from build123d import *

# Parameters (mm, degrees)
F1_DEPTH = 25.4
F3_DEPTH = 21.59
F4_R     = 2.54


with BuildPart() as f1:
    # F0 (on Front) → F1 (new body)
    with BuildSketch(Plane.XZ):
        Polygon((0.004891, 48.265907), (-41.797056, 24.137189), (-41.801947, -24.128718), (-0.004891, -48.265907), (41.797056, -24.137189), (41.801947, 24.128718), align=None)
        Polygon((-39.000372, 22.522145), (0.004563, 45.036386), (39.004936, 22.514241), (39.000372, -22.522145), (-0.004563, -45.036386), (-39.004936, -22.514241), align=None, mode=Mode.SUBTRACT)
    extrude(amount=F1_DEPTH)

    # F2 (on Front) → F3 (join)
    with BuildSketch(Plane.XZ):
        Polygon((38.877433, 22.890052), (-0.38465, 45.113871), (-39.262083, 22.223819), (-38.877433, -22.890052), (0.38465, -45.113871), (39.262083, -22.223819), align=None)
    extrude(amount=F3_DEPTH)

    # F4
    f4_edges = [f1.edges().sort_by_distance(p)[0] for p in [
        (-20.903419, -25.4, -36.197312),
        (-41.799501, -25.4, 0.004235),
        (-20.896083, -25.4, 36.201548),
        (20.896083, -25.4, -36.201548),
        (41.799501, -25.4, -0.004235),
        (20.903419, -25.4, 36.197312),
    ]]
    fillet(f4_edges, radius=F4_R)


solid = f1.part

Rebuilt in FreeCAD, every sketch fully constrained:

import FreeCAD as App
import Part
import Sketcher
Q = App.Units.Quantity


def edges_at(feature, points):
    """Names of the edges that pass closest to the given points."""
    edges = feature.Shape.Edges
    near = lambda p: min(range(len(edges)), key=lambda i: edges[i].distToShape(Part.Vertex(*p))[0])
    return sorted({f"Edge{near(p) + 1}" for p in points})


def add_polygon(sketch, points):
    """Adds a closed chain of lines whose ends are joined by coincident constraints."""
    first, n = sketch.GeometryCount, len(points)
    for a, b in zip(points, points[1:] + points[:1]):
        sketch.addGeometry(Part.LineSegment(App.Vector(*a, 0), App.Vector(*b, 0)), False)
    for i in range(n):
        sketch.addConstraint(Sketcher.Constraint("Coincident", first + i, 2, first + (i + 1) % n, 1))

doc = App.newDocument("Part")
body = doc.addObject("PartDesign::Body", "Body")

sketch1 = body.newObject("Sketcher::SketchObject", "Sketch")
sketch1.AttachmentSupport = (doc.getObject("XZ_Plane"), [""])
sketch1.MapMode = "FlatFace"
add_polygon(sketch1, [(0, 48), (-42, 24), (-42, -24), (0, -48), (42, -24), (42, 24)])
add_polygon(sketch1, [(-39, -23), (-39, 23), (0, 45), (39, 23), (39, -23), (0, -45)])
sketch1.addConstraint([
    Sketcher.Constraint("Symmetric", 0, 2, 3, 2, -1, 1),
    Sketcher.Constraint("Symmetric", 1, 2, 4, 2, -1, 1),
    Sketcher.Constraint("Symmetric", 2, 2, 5, 2, -1, 1),
    Sketcher.Constraint("Symmetric", 6, 2, 9, 2, -1, 1),
    Sketcher.Constraint("Symmetric", 7, 2, 10, 2, -1, 1),
    Sketcher.Constraint("Symmetric", 8, 2, 11, 2, -1, 1),
    Sketcher.Constraint("Parallel", 4, 6),
    Sketcher.Constraint("Parallel", 3, 7),
    Sketcher.Constraint("Parallel", 5, 8),
    Sketcher.Constraint("Equal", 0, 1),
    Sketcher.Constraint("Equal", 1, 2),
    Sketcher.Constraint("Equal", 6, 7),
    Sketcher.Constraint("Equal", 7, 8),
    Sketcher.Constraint("DistanceX", 10, 2, 8, 2, Q("39.009499 mm")),
    Sketcher.Constraint("DistanceY", -1, 1, 0, 2, Q("24.137189 mm")),
    Sketcher.Constraint("DistanceX", 2, 2, -1, 1, Q("0.004891 mm")),
    Sketcher.Constraint("DistanceY", -1, 1, 8, 2, Q("22.514241 mm")),
    Sketcher.Constraint("DistanceX", 1, 2, 0, 2, Q("0.004891 mm")),
])
pad1 = body.newObject("PartDesign::Pad", "Pad")
pad1.Profile = sketch1
pad1.Length = Q("1 in")

sketch2 = body.newObject("Sketcher::SketchObject", "Sketch001")
sketch2.AttachmentSupport = (doc.getObject("XZ_Plane"), [""])
sketch2.MapMode = "FlatFace"
add_polygon(sketch2, [(39, 23), (0, 45), (-39, 22), (-39, -23), (0, -45), (39, -22)])
sketch2.addConstraint([
    Sketcher.Constraint("Symmetric", 0, 2, 3, 2, -1, 1),
    Sketcher.Constraint("Symmetric", 1, 2, 4, 2, -1, 1),
    Sketcher.Constraint("Symmetric", 2, 2, 5, 2, -1, 1),
    Sketcher.Constraint("Equal", 0, 1),
    Sketcher.Constraint("Equal", 1, 2),
    Sketcher.Constraint("DistanceX", 0, 2, 3, 2, Q("0.7693 mm")),
    Sketcher.Constraint("Distance", 0, Q("45.115511 mm")),
    Sketcher.Constraint("DistanceY", -1, 1, 0, 2, Q("45.113871 mm")),
    Sketcher.Constraint("DistanceY", -1, 1, 1, 2, Q("22.223819 mm")),
])
pad2 = body.newObject("PartDesign::Pad", "Pad001")
pad2.Profile = sketch2
pad2.Length = Q("0.85 in")
doc.recompute()

fillet = body.newObject("PartDesign::Fillet", "Fillet")
fillet.Base = (pad2, edges_at(pad2, [
    (-20.903, -25.4, -36.197),
    (-41.8, -25.4, 0.004),
    (-20.896, -25.4, 36.202),
    (20.896, -25.4, -36.202),
    (41.8, -25.4, -0.004),
    (20.903, -25.4, 36.197),
]))
fillet.Radius = Q("0.1 in")

doc.recompute()
